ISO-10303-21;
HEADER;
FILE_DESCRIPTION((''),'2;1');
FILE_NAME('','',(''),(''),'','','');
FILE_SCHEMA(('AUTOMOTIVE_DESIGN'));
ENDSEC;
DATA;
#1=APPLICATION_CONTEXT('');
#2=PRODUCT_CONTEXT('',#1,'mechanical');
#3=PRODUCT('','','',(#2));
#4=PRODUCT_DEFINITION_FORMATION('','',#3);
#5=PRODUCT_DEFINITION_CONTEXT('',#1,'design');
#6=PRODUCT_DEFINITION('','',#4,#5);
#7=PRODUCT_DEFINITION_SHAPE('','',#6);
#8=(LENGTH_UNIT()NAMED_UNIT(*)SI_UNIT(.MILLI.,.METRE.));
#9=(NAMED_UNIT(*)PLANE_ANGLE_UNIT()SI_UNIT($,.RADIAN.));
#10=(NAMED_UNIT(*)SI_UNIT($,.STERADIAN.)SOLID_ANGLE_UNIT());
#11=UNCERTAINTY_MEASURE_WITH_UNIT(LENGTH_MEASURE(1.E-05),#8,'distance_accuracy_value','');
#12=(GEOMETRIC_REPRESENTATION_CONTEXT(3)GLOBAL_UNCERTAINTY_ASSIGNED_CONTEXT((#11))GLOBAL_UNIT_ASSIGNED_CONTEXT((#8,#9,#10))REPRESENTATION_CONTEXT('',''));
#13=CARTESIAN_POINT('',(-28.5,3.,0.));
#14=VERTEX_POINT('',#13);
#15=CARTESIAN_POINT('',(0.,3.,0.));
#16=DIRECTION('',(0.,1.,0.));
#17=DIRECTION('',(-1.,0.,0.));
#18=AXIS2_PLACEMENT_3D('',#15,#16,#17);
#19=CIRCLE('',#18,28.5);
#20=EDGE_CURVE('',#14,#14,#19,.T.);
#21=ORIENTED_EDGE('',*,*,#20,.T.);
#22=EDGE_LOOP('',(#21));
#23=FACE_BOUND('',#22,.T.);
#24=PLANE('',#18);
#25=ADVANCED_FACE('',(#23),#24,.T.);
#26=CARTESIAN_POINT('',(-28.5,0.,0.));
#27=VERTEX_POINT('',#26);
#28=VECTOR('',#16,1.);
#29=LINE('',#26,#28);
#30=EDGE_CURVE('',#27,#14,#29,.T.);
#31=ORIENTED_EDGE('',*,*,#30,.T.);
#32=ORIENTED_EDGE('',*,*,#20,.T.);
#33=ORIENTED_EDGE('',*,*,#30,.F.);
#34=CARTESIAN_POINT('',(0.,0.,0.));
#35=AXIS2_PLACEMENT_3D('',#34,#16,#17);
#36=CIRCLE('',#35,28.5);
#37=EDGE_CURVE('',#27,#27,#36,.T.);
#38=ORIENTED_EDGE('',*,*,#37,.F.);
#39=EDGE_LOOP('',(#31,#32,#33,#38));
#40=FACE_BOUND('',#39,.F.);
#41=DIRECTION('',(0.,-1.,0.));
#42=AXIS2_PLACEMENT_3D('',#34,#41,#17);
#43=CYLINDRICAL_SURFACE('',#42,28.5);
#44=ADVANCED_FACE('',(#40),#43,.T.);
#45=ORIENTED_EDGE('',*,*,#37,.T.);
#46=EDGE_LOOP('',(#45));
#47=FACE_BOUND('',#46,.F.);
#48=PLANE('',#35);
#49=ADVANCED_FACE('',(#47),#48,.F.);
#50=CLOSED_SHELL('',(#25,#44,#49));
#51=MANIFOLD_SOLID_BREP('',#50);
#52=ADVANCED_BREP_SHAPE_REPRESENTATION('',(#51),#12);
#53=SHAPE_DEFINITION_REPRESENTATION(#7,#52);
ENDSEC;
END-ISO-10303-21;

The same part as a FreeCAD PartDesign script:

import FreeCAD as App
import Part
import Sketcher
from FreeCAD import Vector

doc = App.newDocument("Part")
body = doc.addObject("PartDesign::Body", "Body")

sketch1 = body.newObject("Sketcher::SketchObject", "Sketch")
sketch1.AttachmentSupport = (doc.getObject("XZ_Plane"), [""])
sketch1.MapMode = "FlatFace"
sketch1.addGeometry(Part.Circle(Vector(0, 0, 0), Vector(0, 0, 1), 28.5), False)
sketch1.addConstraint([
    Sketcher.Constraint("Coincident", 0, 3, -1, 1),
    Sketcher.Constraint("Diameter", 0, 57.0),
])
pad1 = body.newObject("PartDesign::Pad", "Pad")
pad1.Profile = sketch1
pad1.Length = 3
pad1.Reversed = True

doc.recompute()
